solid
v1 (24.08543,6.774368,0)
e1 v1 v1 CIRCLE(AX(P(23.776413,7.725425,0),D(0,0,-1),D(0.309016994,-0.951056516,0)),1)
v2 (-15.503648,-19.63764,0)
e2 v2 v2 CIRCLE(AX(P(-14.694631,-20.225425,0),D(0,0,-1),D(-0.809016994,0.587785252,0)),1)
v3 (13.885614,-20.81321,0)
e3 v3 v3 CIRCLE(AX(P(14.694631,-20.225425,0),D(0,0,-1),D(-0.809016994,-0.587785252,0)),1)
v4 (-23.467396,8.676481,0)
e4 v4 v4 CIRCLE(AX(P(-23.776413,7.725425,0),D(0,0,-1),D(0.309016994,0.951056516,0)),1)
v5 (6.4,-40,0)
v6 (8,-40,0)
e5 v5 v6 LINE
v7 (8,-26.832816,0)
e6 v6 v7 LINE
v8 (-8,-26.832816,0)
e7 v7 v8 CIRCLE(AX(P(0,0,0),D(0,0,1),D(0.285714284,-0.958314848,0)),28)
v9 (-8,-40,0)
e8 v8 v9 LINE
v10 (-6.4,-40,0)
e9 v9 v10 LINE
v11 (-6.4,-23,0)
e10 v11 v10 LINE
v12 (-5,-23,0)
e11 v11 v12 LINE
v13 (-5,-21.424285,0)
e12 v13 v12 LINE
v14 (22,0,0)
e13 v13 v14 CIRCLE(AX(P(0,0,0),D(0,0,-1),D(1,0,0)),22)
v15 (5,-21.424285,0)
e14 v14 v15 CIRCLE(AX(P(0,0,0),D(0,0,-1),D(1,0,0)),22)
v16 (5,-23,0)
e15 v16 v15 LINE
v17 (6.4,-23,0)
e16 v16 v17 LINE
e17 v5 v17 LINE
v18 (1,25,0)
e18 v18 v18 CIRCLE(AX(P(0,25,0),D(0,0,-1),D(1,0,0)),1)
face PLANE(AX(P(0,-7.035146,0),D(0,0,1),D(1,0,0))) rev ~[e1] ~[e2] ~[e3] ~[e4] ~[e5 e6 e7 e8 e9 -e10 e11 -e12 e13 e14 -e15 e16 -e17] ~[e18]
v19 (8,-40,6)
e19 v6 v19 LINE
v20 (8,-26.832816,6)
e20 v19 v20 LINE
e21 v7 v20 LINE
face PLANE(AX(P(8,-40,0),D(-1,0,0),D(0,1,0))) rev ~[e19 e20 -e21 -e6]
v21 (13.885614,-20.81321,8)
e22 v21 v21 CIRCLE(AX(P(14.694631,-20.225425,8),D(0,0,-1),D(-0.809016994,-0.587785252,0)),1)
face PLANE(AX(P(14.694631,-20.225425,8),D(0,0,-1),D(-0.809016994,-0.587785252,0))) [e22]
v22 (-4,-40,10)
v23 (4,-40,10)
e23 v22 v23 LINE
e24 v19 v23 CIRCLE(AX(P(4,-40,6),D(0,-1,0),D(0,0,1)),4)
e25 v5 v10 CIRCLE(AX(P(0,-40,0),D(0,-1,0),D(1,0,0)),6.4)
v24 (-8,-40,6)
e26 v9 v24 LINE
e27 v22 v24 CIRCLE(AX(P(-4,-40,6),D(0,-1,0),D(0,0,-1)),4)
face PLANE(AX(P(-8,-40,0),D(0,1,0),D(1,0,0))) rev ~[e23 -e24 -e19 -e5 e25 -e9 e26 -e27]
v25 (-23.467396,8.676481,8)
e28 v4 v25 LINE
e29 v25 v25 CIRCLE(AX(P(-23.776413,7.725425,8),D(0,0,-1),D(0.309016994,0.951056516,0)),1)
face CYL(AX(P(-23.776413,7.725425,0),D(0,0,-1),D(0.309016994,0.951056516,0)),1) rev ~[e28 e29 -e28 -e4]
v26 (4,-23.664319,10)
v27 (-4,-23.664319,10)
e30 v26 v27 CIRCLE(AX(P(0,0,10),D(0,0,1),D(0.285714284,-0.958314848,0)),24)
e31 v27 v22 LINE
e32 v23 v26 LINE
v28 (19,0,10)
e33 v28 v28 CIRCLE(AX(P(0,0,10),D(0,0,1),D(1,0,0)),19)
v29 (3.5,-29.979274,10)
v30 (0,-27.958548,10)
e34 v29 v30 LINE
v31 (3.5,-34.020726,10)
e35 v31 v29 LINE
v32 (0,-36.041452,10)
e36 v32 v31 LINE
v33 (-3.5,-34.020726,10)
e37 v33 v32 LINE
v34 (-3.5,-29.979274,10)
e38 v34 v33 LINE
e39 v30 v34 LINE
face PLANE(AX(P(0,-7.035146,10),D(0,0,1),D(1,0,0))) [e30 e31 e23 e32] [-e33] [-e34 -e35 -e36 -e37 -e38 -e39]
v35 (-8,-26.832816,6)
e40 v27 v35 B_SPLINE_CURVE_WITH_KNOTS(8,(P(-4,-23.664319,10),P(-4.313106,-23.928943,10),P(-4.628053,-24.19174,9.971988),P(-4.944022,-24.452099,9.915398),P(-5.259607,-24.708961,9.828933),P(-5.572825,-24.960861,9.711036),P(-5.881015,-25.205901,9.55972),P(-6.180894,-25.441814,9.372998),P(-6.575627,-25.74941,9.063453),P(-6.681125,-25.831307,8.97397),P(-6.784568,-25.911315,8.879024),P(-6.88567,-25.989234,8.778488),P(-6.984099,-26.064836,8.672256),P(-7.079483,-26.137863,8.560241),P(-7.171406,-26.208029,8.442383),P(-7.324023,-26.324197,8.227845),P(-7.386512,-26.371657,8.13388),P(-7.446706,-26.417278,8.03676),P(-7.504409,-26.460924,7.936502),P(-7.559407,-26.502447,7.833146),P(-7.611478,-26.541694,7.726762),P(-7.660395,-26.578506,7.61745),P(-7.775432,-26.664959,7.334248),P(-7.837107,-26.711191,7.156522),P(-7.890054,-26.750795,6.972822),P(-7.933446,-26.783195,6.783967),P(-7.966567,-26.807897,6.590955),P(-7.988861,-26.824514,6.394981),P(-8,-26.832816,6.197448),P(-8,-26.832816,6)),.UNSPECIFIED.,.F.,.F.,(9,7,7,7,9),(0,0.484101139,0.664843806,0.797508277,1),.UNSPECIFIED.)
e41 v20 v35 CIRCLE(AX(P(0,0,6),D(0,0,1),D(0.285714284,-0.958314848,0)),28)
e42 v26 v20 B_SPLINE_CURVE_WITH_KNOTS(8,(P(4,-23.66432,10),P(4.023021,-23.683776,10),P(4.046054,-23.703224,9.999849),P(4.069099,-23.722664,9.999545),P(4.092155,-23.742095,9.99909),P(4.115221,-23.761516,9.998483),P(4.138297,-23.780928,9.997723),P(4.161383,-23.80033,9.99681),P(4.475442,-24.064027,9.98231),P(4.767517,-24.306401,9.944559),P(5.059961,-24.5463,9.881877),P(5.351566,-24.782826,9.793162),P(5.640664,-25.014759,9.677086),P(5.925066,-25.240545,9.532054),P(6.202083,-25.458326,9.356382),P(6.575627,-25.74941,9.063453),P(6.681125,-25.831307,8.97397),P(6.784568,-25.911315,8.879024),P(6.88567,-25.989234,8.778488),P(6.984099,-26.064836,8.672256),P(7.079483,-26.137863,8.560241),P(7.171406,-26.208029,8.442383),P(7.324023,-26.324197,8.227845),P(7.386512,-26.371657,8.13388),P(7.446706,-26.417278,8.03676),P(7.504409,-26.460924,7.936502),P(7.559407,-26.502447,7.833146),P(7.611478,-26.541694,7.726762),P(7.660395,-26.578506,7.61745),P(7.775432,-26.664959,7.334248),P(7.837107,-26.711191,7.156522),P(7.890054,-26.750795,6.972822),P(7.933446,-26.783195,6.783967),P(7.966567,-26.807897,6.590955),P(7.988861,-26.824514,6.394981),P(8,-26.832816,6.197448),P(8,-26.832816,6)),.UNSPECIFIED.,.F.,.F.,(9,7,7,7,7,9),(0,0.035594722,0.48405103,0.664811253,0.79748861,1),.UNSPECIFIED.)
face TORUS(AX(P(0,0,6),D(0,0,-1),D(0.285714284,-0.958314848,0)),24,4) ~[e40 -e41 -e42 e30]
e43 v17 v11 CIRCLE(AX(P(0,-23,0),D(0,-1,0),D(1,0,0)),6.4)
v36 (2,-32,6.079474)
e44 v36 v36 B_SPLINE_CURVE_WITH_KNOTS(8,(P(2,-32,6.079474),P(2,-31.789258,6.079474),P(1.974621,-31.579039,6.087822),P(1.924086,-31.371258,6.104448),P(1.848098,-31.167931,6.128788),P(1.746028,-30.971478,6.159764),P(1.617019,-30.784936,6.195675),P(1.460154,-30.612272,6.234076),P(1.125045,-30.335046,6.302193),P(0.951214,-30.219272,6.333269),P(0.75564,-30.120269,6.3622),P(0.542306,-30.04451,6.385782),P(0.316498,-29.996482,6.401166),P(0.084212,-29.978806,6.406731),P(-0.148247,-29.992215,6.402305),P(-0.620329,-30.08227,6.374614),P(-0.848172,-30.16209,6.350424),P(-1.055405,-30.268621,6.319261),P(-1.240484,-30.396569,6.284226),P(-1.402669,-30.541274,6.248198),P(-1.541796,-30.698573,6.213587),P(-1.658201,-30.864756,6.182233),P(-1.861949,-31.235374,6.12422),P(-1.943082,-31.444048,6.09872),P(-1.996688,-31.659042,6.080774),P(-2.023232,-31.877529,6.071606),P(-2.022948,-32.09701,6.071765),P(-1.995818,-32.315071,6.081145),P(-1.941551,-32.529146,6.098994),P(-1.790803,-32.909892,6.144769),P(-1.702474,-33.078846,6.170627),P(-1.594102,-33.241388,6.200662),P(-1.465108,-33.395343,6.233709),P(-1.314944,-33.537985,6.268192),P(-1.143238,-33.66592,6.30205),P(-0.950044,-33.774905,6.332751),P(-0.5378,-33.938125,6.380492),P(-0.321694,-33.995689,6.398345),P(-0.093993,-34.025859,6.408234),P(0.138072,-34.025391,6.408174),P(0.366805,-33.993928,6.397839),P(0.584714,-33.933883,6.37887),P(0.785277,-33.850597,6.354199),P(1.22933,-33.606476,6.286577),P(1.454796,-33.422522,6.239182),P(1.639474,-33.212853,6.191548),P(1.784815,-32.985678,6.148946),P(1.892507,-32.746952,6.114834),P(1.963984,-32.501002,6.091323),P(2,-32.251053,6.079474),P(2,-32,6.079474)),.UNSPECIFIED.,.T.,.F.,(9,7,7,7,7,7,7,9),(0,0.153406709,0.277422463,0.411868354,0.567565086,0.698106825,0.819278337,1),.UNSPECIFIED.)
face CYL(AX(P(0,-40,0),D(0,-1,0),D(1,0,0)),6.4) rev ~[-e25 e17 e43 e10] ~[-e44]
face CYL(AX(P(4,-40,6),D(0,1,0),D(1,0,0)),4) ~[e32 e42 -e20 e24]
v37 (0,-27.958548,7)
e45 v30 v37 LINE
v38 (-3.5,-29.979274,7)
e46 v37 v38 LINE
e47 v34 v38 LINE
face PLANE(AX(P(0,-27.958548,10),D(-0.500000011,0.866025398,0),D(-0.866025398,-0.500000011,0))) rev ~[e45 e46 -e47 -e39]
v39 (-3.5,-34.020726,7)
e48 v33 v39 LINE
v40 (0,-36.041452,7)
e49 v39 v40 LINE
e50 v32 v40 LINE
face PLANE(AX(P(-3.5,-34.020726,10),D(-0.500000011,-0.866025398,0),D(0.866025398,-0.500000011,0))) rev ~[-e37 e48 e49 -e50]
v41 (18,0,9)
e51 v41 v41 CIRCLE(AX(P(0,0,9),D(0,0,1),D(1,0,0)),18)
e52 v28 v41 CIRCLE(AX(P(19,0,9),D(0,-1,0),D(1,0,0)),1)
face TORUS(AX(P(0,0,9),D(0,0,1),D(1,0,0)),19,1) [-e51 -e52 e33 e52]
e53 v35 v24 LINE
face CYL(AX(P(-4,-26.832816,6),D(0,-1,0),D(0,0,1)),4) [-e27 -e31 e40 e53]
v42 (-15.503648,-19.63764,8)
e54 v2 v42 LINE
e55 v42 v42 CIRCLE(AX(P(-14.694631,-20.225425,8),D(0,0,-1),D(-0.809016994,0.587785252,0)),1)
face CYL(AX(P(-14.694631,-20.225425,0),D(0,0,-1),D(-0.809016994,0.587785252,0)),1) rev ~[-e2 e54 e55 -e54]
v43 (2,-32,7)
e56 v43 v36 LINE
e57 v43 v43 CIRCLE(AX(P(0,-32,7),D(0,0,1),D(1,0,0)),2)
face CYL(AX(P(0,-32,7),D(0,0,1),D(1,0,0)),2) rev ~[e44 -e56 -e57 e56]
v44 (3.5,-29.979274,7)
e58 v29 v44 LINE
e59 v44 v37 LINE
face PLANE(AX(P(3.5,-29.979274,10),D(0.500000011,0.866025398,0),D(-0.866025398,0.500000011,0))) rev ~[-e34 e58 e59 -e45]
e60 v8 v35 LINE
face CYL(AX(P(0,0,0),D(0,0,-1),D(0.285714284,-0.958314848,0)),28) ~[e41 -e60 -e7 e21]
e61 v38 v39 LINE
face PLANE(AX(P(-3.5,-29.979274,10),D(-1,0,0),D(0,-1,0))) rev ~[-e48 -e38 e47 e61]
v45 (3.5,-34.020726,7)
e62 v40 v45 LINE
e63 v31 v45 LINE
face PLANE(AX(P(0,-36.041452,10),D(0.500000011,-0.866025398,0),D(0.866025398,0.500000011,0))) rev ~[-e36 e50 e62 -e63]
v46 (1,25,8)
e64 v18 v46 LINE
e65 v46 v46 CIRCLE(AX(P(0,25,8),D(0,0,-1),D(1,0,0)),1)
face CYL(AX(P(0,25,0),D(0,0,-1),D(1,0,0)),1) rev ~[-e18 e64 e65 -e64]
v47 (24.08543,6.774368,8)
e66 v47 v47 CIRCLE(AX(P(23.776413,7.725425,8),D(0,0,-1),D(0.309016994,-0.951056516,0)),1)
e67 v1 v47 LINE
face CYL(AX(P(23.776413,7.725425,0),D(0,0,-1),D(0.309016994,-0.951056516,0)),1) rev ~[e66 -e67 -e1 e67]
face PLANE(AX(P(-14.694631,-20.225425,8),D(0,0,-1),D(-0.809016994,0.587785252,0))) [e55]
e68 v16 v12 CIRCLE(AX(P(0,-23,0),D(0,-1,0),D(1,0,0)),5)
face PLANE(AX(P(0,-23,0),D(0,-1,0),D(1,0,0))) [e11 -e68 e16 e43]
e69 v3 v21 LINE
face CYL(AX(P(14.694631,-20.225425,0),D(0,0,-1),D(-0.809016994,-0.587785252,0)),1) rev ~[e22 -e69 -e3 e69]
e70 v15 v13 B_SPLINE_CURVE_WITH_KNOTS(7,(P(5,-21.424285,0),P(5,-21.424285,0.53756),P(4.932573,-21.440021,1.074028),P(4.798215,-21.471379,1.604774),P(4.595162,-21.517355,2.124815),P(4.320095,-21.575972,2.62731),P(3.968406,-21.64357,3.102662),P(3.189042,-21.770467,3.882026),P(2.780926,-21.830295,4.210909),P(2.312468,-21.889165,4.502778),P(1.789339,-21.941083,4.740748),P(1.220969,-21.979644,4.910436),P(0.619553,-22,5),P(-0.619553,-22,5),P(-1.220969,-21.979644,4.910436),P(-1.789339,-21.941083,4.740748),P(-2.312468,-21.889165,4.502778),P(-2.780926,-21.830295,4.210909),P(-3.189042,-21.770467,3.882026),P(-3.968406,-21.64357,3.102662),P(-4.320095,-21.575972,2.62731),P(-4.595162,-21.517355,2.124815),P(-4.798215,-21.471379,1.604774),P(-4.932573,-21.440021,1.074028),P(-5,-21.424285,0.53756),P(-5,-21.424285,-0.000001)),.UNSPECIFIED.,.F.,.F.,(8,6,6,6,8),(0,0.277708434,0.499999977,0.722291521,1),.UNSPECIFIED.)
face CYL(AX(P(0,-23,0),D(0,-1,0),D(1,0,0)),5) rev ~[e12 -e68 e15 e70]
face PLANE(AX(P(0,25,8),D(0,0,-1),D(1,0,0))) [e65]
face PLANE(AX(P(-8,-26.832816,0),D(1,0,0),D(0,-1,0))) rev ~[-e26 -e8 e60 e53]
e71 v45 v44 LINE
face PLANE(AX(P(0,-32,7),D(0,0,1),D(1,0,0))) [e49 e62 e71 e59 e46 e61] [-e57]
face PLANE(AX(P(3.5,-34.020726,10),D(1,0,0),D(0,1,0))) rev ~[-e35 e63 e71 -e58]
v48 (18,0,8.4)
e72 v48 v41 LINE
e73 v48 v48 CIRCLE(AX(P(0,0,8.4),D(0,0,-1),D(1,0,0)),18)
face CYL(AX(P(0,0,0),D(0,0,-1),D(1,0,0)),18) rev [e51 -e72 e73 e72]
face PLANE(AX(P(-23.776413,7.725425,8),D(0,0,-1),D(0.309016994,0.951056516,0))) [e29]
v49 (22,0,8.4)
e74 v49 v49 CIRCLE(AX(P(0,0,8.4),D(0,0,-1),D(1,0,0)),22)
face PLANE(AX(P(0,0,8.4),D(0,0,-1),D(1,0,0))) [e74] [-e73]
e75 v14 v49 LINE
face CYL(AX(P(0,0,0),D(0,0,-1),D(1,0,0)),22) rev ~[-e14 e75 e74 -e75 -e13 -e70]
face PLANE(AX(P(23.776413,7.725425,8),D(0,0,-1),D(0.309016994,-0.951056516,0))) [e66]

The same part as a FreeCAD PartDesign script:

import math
import FreeCAD as App
import Part
import Sketcher

V = App.Vector
Q = App.Units.Quantity


def edges_at(feature, points):
    """Names of the edges that pass closest to the given points."""
    edges = feature.Shape.Edges
    near = lambda p: min(range(len(edges)), key=lambda i: edges[i].distToShape(Part.Vertex(*p))[0])
    return sorted({f"Edge{near(p) + 1}" for p in points})


def add_polygon(sketch, points):
    """Adds a closed chain of lines whose ends are joined by coincident constraints."""
    first, n = sketch.GeometryCount, len(points)
    for a, b in zip(points, points[1:] + points[:1]):
        sketch.addGeometry(Part.LineSegment(App.Vector(*a, 0), App.Vector(*b, 0)), False)
    for i in range(n):
        sketch.addConstraint(Sketcher.Constraint("Coincident", first + i, 2, first + (i + 1) % n, 1))

doc = App.newDocument("Part")
params = doc.addObject("Spreadsheet::Sheet", "Params")
for row, (alias, value) in enumerate([
    ("sketch1_diameter", "36 mm"),
    ("sketch1_radius", "28 mm"),
    ("sketch1_width", "16 mm"),
    ("pad1_length", "10 mm"),
    ("sketch2_diameter", "44 mm"),
    ("pocket1_length", "8.4 mm"),
    ("sketch3_diameter", "12.8 mm"),
    ("pocket2_length", "17 mm"),
    ("sketch4_diameter", "10 mm"),
    ("pocket3_length", "5 mm"),
    ("sketch5_diameter", "2 mm"),
    ("pocket4_length", "8 mm"),
    ("pocket5_length", "3 mm"),
    ("sketch7_diameter", "4 mm"),
    ("pocket6_length", "5 mm"),
    ("fillet_radius", "4 mm"),
    ("fillet2_radius", "1 mm"),
], start=1):
    params.set(f"A{row}", alias)
    params.set(f"B{row}", "=" + value)
    params.setAlias(f"B{row}", alias)

body = doc.addObject("PartDesign::Body", "Body")

sketch1 = body.newObject("Sketcher::SketchObject", "Sketch")
sketch1.AttachmentSupport = (doc.getObject("XY_Plane"), [""])
sketch1.MapMode = "FlatFace"
sketch1.addGeometry(Part.LineSegment(V(-8, -40, 0), V(8, -40, 0)), False)
sketch1.addGeometry(Part.LineSegment(V(8, -40, 0), V(8, -27, 0)), False)
sketch1.addGeometry(Part.ArcOfCircle(Part.Circle(V(0, 0, 0), V(0, 0, 1), 28), math.radians(-73), math.radians(253)), False)
sketch1.addGeometry(Part.LineSegment(V(-8, -27, 0), V(-8, -40, 0)), False)
sketch1.addGeometry(Part.Circle(V(0, 0, 0), V(0, 0, 1), 18), False)
sketch1.addConstraint(Sketcher.Constraint("Coincident", 0, 2, 1, 1))
sketch1.addConstraint(Sketcher.Constraint("Coincident", 1, 2, 2, 1))
sketch1.addConstraint(Sketcher.Constraint("Coincident", 2, 2, 3, 1))
sketch1.addConstraint(Sketcher.Constraint("Coincident", 3, 2, 0, 1))
sketch1.addConstraint(Sketcher.Constraint("Horizontal", 0))
sketch1.addConstraint(Sketcher.Constraint("Vertical", 1))
sketch1.addConstraint(Sketcher.Constraint("Vertical", 3))
sketch1.addConstraint(Sketcher.Constraint("Coincident", 2, 3, -1, 1))
sketch1.addConstraint(Sketcher.Constraint("Coincident", 4, 3, -1, 1))
sketch1.addConstraint(Sketcher.Constraint("Horizontal", 1, 2, 2, 2))
sketch1.addConstraint(Sketcher.Constraint("Diameter", 4, 36.0))
sketch1.addConstraint(Sketcher.Constraint("Radius", 2, 28.0))
sketch1.addConstraint(Sketcher.Constraint("DistanceX", 0, 1, 0, 2, 16.0))
sketch1.addConstraint(Sketcher.Constraint("DistanceY", 0, 2, -1, 1, 40.0))
sketch1.setExpression("Constraints[10]", "Params.sketch1_diameter")
sketch1.setExpression("Constraints[11]", "Params.sketch1_radius")
sketch1.setExpression("Constraints[12]", "Params.sketch1_width")
pad1 = body.newObject("PartDesign::Pad", "Pad")
pad1.Profile = sketch1
pad1.setExpression("Length", "Params.pad1_length")

sketch2 = body.newObject("Sketcher::SketchObject", "Sketch001")
sketch2.AttachmentSupport = (doc.getObject("XY_Plane"), [""])
sketch2.MapMode = "FlatFace"
sketch2.addGeometry(Part.Circle(V(0, 0, 0), V(0, 0, 1), 22), False)
sketch2.addConstraint(Sketcher.Constraint("Coincident", 0, 3, -1, 1))
sketch2.addConstraint(Sketcher.Constraint("Diameter", 0, 44.0))
sketch2.setExpression("Constraints[1]", "Params.sketch2_diameter")
pocket1 = body.newObject("PartDesign::Pocket", "Pocket")
pocket1.Profile = sketch2
pocket1.setExpression("Length", "Params.pocket1_length")
pocket1.Reversed = True

sketch3 = body.newObject("Sketcher::SketchObject", "Sketch002")
sketch3.AttachmentSupport = (doc.getObject("XZ_Plane"), [""])
sketch3.MapMode = "FlatFace"
sketch3.AttachmentOffset = App.Placement(V(0, 0, 40), App.Rotation())
sketch3.addGeometry(Part.Circle(V(0, 0, 0), V(0, 0, 1), 6), False)
sketch3.addConstraint(Sketcher.Constraint("Coincident", 0, 3, -1, 1))
sketch3.addConstraint(Sketcher.Constraint("Diameter", 0, 12.8))
sketch3.setExpression("Constraints[1]", "Params.sketch3_diameter")
pocket2 = body.newObject("PartDesign::Pocket", "Pocket001")
pocket2.Profile = sketch3
pocket2.setExpression("Length", "Params.pocket2_length")

sketch4 = body.newObject("Sketcher::SketchObject", "Sketch003")
sketch4.AttachmentSupport = (doc.getObject("XZ_Plane"), [""])
sketch4.MapMode = "FlatFace"
sketch4.AttachmentOffset = App.Placement(V(0, 0, 23), App.Rotation())
sketch4.addGeometry(Part.Circle(V(0, 0, 0), V(0, 0, 1), 5), False)
sketch4.addConstraint(Sketcher.Constraint("Coincident", 0, 3, -1, 1))
sketch4.addConstraint(Sketcher.Constraint("Diameter", 0, 10.0))
sketch4.setExpression("Constraints[1]", "Params.sketch4_diameter")
pocket3 = body.newObject("PartDesign::Pocket", "Pocket002")
pocket3.Profile = sketch4
pocket3.setExpression("Length", "Params.pocket3_length")

sketch5 = body.newObject("Sketcher::SketchObject", "Sketch004")
sketch5.AttachmentSupport = (doc.getObject("XY_Plane"), [""])
sketch5.MapMode = "FlatFace"
sketch5.addGeometry(Part.Circle(V(0, 25, 0), V(0, 0, 1), 1), False)
sketch5.addConstraint(Sketcher.Constraint("PointOnObject", 0, 3, -2))
sketch5.addConstraint(Sketcher.Constraint("Diameter", 0, 2.0))
sketch5.addConstraint(Sketcher.Constraint("DistanceY", -1, 1, 0, 3, 25.0))
sketch5.setExpression("Constraints[1]", "Params.sketch5_diameter")
pocket4 = body.newObject("PartDesign::Pocket", "Pocket003")
pocket4.Profile = sketch5
pocket4.setExpression("Length", "Params.pocket4_length")
pocket4.Reversed = True
doc.recompute()

polarpattern = body.newObject("PartDesign::PolarPattern", "PolarPattern")
polarpattern.Originals = [pocket4]
polarpattern.Axis = (doc.getObject("Z_Axis"), [""])
polarpattern.Angle = 360
polarpattern.Occurrences = 5
body.Tip = polarpattern

sketch6 = body.newObject("Sketcher::SketchObject", "Sketch005")
sketch6.AttachmentSupport = (doc.getObject("XY_Plane"), [""])
sketch6.MapMode = "FlatFace"
sketch6.AttachmentOffset = App.Placement(V(0, 0, 10), App.Rotation())
add_polygon(sketch6, [(0, -36), (3.5, -34), (3.5, -30), (0, -28), (-3.5, -30), (-3.5, -34)])
sketch6.addConstraint(Sketcher.Constraint("Vertical", 1))
sketch6.addConstraint(Sketcher.Constraint("Vertical", 4))
sketch6.addConstraint(Sketcher.Constraint("Symmetric", 1, 2, 3, 2, -2))
sketch6.addConstraint(Sketcher.Constraint("PointOnObject", 2, 2, -2))
sketch6.addConstraint(Sketcher.Constraint("PointOnObject", 5, 2, -2))
sketch6.addConstraint(Sketcher.Constraint("Parallel", 0, 3))
sketch6.addConstraint(Sketcher.Constraint("Parallel", 2, 5))
sketch6.addConstraint(Sketcher.Constraint("Angle", 0, Q("30.000001 deg")))
sketch6.addConstraint(Sketcher.Constraint("DistanceX", 3, 2, 1, 2, 7.0))
sketch6.addConstraint(Sketcher.Constraint("DistanceY", 1, 1, 1, 2, 4.041452))
sketch6.addConstraint(Sketcher.Constraint("DistanceY", 2, 2, -1, 1, 27.958548))
pocket5 = body.newObject("PartDesign::Pocket", "Pocket004")
pocket5.Profile = sketch6
pocket5.setExpression("Length", "Params.pocket5_length")

sketch7 = body.newObject("Sketcher::SketchObject", "Sketch006")
sketch7.AttachmentSupport = (doc.getObject("XY_Plane"), [""])
sketch7.MapMode = "FlatFace"
sketch7.AttachmentOffset = App.Placement(V(0, 0, 7), App.Rotation())
sketch7.addGeometry(Part.Circle(V(0, -32, 0), V(0, 0, 1), 2), False)
sketch7.addConstraint(Sketcher.Constraint("PointOnObject", 0, 3, -2))
sketch7.addConstraint(Sketcher.Constraint("Diameter", 0, 4.0))
sketch7.addConstraint(Sketcher.Constraint("DistanceY", 0, 3, -1, 1, 32.0))
sketch7.setExpression("Constraints[1]", "Params.sketch7_diameter")
pocket6 = body.newObject("PartDesign::Pocket", "Pocket005")
pocket6.Profile = sketch7
pocket6.setExpression("Length", "Params.pocket6_length")
doc.recompute()

fillet = body.newObject("PartDesign::Fillet", "Fillet")
fillet.Base = (pocket6, edges_at(pocket6, [(0, 28, 10), (8, -33.416, 10), (-8, -33.416, 10)]))
fillet.setExpression("Radius", "Params.fillet_radius")
doc.recompute()

fillet2 = body.newObject("PartDesign::Fillet", "Fillet001")
fillet2.Base = (fillet, edges_at(fillet, [(-18, 0, 10)]))
fillet2.setExpression("Radius", "Params.fillet2_radius")

doc.recompute()
